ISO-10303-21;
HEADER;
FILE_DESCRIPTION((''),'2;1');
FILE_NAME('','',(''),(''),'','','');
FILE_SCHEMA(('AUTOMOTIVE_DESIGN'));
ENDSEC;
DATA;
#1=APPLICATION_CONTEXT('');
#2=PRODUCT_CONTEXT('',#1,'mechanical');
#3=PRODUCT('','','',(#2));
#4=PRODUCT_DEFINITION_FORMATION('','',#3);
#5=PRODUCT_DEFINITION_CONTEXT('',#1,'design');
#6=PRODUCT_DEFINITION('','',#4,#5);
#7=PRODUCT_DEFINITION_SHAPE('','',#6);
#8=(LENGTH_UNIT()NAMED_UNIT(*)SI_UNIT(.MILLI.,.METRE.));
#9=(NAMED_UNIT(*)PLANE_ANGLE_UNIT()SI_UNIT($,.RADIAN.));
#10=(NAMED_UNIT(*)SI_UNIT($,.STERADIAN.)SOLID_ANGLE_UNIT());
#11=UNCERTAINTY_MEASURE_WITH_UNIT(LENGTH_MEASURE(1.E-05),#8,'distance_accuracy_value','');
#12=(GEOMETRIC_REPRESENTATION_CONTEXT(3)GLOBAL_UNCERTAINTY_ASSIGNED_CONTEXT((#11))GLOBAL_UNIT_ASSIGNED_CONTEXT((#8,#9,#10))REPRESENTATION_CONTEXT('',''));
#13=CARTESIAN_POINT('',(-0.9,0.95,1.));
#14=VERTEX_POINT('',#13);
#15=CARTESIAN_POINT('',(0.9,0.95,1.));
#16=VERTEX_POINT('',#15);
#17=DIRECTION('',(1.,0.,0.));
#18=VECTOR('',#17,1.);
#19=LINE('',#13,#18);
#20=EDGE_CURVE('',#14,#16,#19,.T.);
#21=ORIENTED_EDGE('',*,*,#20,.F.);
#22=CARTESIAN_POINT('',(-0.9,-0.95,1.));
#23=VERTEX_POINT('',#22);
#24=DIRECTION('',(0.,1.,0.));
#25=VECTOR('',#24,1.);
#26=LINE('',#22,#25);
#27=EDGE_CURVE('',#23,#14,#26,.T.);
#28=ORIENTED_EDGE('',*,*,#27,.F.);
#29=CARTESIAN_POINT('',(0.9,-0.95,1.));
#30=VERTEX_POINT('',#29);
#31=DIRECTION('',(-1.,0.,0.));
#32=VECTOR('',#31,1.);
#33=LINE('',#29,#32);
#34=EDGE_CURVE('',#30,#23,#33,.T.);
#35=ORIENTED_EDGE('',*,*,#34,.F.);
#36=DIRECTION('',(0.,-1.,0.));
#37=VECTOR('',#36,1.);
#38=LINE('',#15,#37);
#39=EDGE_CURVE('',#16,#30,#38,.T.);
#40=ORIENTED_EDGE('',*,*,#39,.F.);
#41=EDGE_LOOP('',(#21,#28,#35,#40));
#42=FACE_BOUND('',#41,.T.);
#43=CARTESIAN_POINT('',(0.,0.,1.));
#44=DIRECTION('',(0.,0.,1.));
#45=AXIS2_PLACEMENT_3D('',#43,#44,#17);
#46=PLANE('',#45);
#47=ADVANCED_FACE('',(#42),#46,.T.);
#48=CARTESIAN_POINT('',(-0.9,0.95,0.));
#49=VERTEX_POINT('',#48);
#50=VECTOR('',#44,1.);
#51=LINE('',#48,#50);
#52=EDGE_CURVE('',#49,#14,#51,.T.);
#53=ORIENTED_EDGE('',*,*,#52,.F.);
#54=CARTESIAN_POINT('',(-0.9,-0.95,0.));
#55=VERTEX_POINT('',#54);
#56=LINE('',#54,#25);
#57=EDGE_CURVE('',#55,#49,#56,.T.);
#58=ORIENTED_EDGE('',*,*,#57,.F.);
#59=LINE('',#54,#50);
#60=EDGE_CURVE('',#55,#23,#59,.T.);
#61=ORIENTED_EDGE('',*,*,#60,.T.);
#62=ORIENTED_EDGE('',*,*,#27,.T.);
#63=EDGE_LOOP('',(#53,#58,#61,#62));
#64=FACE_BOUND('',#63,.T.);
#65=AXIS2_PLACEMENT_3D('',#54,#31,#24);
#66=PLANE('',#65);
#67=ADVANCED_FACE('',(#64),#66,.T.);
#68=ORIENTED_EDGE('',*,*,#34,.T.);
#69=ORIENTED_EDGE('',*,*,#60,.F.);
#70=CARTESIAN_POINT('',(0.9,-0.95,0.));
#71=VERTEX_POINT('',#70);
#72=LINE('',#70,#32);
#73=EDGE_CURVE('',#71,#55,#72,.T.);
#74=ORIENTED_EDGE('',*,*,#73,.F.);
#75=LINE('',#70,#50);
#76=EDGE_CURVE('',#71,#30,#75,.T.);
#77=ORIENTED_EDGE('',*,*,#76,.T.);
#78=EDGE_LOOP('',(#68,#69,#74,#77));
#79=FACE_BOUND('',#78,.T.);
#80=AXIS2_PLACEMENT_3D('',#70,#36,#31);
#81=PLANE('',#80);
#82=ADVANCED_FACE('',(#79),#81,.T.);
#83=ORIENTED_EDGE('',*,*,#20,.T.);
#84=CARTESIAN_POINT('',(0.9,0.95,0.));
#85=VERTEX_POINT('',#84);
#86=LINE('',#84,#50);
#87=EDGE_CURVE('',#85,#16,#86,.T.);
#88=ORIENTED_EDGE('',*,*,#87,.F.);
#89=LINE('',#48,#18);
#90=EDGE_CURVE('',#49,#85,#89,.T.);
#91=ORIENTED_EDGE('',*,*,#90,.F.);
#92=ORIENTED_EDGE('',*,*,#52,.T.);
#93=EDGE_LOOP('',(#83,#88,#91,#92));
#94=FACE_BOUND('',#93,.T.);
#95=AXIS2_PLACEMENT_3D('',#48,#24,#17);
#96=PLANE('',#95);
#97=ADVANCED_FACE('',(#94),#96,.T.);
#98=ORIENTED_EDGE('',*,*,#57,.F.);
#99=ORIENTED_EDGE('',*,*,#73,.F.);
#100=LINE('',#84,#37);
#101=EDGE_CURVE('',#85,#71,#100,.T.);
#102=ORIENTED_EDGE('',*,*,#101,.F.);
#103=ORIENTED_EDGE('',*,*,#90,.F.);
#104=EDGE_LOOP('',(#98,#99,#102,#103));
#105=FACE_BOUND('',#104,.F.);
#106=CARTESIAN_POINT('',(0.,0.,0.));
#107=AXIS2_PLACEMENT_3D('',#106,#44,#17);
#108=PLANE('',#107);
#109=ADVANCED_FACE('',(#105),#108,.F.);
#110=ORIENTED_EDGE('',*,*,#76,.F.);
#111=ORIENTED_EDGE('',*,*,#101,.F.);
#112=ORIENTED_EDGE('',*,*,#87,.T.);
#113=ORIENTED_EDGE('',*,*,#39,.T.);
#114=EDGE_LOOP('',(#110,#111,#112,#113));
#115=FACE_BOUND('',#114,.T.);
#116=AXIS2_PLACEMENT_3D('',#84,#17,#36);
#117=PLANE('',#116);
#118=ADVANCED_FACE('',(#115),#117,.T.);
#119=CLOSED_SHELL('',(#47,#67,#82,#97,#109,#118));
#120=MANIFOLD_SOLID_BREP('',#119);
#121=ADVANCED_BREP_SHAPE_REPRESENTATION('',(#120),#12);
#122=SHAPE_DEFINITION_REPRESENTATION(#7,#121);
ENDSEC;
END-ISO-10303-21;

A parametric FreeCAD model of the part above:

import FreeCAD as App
import Part
import Sketcher
from FreeCAD import Vector


def add_polygon(sketch, points):
    """Adds a closed chain of lines whose ends are joined by coincident constraints."""
    first, n = sketch.GeometryCount, len(points)
    for a, b in zip(points, points[1:] + points[:1]):
        sketch.addGeometry(Part.LineSegment(App.Vector(*a, 0), App.Vector(*b, 0)), False)
    for i in range(n):
        sketch.addConstraint(Sketcher.Constraint("Coincident", first + i, 2, first + (i + 1) % n, 1))

doc = App.newDocument("Part")
body = doc.addObject("PartDesign::Body", "Body")

# Sketch on XY plane
sketch1 = body.newObject("Sketcher::SketchObject", "Sketch")
sketch1.AttachmentSupport = (doc.getObject("XY_Plane"), [""])
sketch1.MapMode = "FlatFace"
add_polygon(sketch1, [(0.9, 0.9), (-0.9, 0.9), (-0.9, -0.9), (0.9, -0.9)])  # lines 0-3
sketch1.addConstraint(Sketcher.Constraint("Horizontal", 0))
sketch1.addConstraint(Sketcher.Constraint("Vertical", 1))
sketch1.addConstraint(Sketcher.Constraint("Horizontal", 2))
sketch1.addConstraint(Sketcher.Constraint("Vertical", 3))
sketch1.addConstraint(Sketcher.Constraint("Symmetric", 0, 2, 2, 2, -1, 1))
sketch1.addConstraint(Sketcher.Constraint("DistanceX", 0, 2, 0, 1, 1.8))
sketch1.addConstraint(Sketcher.Constraint("DistanceY", 1, 2, 1, 1, 1.9))
pad1 = body.newObject("PartDesign::Pad", "Pad")
pad1.Profile = sketch1
pad1.Length = 1

doc.recompute()
